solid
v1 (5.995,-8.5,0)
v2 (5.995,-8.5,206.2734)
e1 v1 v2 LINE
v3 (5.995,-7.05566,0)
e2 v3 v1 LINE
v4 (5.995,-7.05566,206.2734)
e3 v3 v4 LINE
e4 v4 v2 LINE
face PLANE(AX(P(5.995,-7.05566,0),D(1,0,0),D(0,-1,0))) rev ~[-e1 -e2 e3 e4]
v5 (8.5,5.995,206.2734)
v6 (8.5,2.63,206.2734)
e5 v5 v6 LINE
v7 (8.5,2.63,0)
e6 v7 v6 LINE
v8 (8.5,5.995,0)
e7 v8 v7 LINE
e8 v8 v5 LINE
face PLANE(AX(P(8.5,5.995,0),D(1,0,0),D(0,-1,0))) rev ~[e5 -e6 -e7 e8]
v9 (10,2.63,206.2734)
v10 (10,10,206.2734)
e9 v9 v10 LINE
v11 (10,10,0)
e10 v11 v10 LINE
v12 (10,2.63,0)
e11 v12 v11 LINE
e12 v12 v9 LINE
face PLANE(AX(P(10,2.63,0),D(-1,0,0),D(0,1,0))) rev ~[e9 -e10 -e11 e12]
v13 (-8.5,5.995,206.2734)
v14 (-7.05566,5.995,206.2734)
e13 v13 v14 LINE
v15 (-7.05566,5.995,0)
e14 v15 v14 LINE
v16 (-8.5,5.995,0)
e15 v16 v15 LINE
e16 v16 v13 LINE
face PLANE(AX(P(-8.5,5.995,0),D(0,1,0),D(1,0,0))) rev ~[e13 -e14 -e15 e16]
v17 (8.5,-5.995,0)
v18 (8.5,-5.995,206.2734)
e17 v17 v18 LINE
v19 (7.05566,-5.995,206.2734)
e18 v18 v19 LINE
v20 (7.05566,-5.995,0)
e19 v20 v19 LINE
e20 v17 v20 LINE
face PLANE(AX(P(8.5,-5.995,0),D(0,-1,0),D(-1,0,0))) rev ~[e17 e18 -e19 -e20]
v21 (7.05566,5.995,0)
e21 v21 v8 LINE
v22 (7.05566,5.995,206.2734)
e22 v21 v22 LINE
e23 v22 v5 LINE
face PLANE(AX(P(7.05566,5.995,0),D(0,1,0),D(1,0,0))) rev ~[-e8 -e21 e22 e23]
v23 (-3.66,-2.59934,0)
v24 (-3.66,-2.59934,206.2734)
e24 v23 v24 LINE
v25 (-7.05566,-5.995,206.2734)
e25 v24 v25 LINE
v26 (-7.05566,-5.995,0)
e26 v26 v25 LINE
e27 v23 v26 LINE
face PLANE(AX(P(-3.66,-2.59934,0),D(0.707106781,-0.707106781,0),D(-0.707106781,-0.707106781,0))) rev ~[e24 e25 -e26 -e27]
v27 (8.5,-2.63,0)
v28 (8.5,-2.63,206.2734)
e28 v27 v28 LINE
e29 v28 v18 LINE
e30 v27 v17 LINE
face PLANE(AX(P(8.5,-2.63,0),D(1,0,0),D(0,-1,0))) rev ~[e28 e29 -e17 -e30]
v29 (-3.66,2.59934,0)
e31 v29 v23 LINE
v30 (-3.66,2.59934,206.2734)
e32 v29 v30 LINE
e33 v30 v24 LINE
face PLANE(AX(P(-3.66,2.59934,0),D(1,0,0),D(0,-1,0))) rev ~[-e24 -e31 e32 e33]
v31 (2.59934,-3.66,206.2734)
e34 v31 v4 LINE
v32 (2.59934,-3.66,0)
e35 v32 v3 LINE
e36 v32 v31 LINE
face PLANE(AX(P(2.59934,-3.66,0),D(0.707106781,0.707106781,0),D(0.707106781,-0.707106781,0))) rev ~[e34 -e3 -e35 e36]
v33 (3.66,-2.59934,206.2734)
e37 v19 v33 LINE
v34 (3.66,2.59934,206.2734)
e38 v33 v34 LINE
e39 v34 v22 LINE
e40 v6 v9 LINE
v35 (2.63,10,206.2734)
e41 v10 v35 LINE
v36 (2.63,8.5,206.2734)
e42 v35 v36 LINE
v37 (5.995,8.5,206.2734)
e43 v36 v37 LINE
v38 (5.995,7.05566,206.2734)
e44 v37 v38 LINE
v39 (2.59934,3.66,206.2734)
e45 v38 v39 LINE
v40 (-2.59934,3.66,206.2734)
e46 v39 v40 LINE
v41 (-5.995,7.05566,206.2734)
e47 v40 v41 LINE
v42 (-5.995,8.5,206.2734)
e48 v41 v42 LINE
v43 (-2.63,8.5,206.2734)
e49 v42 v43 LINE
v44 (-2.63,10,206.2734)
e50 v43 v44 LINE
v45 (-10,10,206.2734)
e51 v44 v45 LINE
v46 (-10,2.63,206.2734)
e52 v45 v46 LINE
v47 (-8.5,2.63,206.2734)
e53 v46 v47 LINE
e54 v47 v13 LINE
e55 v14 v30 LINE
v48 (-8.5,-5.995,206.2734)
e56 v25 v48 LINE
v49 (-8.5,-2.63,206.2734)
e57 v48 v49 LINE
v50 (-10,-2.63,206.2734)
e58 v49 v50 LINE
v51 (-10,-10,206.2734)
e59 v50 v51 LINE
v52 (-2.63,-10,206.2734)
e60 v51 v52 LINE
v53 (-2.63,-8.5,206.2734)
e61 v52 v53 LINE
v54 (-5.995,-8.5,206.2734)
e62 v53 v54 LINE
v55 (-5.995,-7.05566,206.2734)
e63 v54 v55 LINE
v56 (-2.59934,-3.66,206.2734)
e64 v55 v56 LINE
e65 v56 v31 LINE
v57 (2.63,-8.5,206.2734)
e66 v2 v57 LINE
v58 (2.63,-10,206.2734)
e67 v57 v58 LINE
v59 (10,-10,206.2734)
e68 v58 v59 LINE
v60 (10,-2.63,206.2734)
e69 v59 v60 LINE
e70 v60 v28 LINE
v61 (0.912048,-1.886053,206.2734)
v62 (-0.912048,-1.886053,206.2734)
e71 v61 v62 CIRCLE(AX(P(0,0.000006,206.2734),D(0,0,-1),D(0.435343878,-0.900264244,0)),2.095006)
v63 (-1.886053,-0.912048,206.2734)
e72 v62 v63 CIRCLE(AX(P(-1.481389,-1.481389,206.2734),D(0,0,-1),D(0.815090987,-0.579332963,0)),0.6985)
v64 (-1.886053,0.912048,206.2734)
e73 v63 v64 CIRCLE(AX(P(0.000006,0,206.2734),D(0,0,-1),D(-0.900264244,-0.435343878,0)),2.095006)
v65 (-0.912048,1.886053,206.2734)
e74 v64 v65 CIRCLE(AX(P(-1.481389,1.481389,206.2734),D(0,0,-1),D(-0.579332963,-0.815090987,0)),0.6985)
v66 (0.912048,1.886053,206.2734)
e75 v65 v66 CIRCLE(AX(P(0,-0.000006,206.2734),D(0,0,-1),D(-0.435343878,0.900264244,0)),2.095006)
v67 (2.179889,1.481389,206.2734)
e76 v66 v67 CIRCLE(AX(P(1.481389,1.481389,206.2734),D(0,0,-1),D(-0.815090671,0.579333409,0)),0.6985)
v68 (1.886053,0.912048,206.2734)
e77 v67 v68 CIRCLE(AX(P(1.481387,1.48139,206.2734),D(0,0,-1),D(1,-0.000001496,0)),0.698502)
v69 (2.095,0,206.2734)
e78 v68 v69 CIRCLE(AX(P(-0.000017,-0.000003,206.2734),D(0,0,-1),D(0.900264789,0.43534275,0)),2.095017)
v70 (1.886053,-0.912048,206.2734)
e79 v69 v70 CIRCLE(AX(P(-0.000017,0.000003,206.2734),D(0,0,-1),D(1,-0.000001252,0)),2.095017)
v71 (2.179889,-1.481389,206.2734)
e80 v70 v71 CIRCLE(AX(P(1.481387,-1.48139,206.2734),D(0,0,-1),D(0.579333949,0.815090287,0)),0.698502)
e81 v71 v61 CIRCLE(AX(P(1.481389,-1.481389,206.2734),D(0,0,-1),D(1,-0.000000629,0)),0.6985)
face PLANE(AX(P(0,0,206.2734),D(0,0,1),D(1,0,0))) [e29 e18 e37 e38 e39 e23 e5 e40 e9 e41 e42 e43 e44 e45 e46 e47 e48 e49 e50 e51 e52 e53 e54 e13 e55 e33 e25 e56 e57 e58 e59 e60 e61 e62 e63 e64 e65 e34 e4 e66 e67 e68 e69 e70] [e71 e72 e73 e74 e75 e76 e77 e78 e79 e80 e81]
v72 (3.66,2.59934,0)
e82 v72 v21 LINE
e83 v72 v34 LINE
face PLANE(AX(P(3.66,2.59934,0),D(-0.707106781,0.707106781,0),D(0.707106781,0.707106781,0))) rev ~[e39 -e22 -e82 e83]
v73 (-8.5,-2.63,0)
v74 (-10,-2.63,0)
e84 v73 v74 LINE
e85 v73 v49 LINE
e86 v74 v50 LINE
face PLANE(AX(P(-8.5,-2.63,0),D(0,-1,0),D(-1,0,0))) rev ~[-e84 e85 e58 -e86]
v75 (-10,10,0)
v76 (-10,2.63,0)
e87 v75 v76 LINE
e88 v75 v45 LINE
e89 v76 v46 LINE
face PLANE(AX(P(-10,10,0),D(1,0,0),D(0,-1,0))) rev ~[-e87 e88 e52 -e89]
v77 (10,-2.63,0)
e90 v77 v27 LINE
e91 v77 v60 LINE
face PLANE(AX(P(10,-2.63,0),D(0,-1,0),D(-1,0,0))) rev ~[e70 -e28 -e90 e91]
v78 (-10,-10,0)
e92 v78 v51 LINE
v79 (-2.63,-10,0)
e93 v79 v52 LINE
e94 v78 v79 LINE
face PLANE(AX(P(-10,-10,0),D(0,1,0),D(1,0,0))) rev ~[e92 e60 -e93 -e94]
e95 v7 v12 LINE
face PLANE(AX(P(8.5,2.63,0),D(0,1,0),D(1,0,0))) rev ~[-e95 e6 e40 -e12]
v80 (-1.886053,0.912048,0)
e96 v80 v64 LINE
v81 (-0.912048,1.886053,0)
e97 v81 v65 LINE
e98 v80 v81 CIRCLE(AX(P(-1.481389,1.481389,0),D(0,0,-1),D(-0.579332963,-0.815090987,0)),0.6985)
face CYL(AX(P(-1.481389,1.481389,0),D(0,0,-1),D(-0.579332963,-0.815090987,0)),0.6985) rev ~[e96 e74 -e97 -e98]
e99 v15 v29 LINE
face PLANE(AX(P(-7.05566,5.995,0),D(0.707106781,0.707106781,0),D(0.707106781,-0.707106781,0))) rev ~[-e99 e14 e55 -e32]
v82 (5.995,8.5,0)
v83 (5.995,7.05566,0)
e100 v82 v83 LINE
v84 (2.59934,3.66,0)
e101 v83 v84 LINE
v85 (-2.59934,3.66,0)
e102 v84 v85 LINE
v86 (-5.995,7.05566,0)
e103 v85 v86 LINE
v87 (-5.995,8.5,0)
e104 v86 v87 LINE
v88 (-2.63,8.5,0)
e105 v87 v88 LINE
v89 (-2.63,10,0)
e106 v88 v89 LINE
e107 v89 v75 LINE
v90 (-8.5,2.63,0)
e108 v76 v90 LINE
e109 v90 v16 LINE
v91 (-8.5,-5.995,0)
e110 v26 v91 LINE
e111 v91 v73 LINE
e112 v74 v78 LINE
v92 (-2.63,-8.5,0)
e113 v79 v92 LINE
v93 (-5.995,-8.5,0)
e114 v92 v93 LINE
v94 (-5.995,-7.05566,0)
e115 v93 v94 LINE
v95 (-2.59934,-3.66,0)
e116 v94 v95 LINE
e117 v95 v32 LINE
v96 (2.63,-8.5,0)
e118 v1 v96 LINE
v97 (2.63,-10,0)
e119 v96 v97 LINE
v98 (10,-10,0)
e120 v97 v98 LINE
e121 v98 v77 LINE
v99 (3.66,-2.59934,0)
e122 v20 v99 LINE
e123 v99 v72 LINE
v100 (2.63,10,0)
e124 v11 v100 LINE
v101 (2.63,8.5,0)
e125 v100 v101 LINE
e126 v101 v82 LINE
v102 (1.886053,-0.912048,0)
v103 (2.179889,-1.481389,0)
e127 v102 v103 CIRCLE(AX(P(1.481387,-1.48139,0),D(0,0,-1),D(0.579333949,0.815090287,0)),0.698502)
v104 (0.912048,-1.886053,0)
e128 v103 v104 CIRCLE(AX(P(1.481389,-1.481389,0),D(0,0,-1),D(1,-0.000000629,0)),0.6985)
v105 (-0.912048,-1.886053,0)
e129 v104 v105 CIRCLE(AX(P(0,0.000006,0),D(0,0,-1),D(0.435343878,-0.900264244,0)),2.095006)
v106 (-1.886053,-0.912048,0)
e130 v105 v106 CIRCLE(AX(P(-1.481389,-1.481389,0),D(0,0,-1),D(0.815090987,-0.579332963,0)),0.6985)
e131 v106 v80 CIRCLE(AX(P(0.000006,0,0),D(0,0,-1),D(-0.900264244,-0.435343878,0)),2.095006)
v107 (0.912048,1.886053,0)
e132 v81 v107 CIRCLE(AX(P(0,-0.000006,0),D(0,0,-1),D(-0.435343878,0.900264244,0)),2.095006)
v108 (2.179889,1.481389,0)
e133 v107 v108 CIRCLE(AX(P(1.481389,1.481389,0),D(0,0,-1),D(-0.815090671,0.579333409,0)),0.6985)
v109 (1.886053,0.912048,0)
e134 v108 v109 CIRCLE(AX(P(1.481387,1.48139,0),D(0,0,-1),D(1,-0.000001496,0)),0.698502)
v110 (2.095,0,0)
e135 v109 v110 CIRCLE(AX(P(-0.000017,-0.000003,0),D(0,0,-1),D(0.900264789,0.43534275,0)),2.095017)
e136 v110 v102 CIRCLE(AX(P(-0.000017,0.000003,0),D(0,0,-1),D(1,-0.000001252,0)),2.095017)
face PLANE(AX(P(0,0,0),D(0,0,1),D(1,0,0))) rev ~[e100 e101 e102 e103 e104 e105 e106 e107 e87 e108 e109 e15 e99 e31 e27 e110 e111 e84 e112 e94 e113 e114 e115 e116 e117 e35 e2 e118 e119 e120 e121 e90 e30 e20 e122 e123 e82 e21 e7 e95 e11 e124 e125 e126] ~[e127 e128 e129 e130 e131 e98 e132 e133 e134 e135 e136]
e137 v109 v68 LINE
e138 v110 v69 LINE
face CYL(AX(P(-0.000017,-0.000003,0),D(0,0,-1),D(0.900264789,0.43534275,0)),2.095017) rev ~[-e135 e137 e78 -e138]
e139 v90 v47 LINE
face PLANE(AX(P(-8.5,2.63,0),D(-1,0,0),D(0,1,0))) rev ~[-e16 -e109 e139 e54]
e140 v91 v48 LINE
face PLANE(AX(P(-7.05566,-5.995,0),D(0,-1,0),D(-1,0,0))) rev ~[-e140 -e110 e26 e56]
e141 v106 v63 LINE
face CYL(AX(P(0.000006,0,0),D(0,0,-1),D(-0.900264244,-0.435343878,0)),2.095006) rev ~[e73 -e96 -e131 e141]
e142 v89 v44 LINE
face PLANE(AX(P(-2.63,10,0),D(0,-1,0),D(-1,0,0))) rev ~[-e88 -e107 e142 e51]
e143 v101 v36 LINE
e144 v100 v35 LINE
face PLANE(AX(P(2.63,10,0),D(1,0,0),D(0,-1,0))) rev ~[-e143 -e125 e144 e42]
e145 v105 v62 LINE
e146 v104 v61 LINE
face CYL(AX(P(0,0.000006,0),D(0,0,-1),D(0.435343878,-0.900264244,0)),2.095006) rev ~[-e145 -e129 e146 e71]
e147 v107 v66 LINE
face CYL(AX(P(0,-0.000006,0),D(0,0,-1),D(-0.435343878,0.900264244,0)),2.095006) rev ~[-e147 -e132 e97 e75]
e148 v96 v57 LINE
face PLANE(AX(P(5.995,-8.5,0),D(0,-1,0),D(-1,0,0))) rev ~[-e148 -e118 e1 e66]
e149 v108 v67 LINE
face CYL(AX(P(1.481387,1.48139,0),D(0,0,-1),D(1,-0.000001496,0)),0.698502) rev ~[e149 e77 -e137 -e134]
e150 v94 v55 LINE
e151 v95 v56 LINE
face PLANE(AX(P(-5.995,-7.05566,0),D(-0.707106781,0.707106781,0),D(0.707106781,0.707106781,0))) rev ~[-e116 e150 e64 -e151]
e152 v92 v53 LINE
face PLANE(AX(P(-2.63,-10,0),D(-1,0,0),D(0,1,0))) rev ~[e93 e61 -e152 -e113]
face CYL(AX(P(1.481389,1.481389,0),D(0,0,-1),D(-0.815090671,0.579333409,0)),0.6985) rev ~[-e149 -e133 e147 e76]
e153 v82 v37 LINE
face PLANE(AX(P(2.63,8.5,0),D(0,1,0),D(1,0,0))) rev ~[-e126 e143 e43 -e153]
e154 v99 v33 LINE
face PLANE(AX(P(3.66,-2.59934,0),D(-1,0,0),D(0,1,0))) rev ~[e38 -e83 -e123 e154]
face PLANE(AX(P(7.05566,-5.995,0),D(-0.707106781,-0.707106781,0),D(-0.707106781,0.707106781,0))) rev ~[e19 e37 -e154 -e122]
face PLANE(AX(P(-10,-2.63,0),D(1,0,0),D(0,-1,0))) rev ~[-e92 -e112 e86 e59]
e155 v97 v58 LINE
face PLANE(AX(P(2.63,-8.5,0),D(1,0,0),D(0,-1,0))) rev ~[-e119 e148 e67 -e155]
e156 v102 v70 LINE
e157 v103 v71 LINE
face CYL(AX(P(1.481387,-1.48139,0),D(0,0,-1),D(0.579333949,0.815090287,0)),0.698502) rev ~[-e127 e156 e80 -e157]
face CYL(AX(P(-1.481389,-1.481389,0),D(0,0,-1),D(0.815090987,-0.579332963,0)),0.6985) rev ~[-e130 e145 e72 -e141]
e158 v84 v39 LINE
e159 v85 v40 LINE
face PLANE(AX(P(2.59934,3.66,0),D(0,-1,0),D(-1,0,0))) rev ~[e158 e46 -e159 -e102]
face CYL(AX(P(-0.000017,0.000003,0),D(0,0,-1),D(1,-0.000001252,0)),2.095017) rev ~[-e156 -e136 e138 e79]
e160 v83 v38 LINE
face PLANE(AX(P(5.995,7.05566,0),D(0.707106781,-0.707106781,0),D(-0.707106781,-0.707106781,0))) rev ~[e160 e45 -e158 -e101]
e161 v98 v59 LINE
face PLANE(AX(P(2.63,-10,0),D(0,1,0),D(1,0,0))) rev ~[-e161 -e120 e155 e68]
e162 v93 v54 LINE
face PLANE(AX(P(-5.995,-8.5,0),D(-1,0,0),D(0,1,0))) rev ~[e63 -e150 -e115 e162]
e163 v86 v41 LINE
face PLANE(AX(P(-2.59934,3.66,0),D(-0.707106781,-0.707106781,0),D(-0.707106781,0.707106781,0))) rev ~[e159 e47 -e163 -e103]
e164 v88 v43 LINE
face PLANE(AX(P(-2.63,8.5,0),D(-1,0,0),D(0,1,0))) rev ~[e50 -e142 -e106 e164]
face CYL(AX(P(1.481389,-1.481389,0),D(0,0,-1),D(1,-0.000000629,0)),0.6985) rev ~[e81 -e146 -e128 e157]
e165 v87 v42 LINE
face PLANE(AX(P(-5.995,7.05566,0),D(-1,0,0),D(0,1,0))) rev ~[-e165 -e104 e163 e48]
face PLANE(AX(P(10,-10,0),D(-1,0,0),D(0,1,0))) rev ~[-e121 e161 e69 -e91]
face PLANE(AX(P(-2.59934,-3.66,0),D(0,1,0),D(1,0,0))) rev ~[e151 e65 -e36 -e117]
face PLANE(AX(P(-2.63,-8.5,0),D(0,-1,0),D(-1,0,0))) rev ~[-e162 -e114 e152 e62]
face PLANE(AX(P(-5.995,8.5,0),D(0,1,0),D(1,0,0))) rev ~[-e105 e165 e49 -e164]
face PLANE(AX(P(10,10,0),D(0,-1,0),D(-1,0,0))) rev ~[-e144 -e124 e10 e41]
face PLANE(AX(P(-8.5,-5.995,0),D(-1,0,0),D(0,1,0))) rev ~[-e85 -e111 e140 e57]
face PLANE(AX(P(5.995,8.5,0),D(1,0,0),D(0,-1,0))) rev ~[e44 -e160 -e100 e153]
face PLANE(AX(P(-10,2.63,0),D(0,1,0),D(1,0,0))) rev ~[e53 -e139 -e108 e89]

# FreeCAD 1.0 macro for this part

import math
import FreeCAD as App
import Part
import Sketcher
from FreeCAD import Vector
Q = App.Units.Quantity


def add_polygon(sketch, points):
    """Adds a closed chain of lines whose ends are joined by coincident constraints."""
    first, n = sketch.GeometryCount, len(points)
    for a, b in zip(points, points[1:] + points[:1]):
        sketch.addGeometry(Part.LineSegment(App.Vector(*a, 0), App.Vector(*b, 0)), False)
    for i in range(n):
        sketch.addConstraint(Sketcher.Constraint("Coincident", first + i, 2, first + (i + 1) % n, 1))

doc = App.newDocument("Part")
params = doc.addObject("Spreadsheet::Sheet", "Params")
for row, (alias, value) in enumerate([
    ("pad1_length", "8.121 in"),
], start=1):
    params.set(f"A{row}", alias)
    params.set(f"B{row}", "=" + value)
    params.setAlias(f"B{row}", alias)

body = doc.addObject("PartDesign::Body", "Body")

sketch1 = doc.addObject("Sketcher::SketchObject", "Sketch")
body.addObject(sketch1)
sketch1.AttachmentSupport = (doc.XY_Plane, [""])
sketch1.MapMode = "FlatFace"
add_polygon(sketch1, [(10, 2.6), (10, 10), (2.6, 10), (2.6, 8.5), (6, 8.5), (6, 7.1), (2.6, 3.7), (-2.6, 3.7), (-6, 7.1), (-6, 8.5), (-2.6, 8.5), (-2.6, 10), (-10, 10), (-10, 2.6), (-8.5, 2.6), (-8.5, 6), (-7.1, 6), (-3.7, 2.6), (-3.7, -2.6), (-7.1, -6), (-8.5, -6), (-8.5, -2.6), (-10, -2.6), (-10, -10), (-2.6, -10), (-2.6, -8.5), (-6, -8.5), (-6, -7.1), (-2.6, -3.7), (2.6, -3.7), (6, -7.1), (6, -8.5), (2.6, -8.5), (2.6, -10), (10, -10), (10, -2.6), (8.5, -2.6), (8.5, -6), (7.1, -6), (3.7, -2.6), (3.7, 2.6), (7.1, 6), (8.5, 6), (8.5, 2.6)])
sketch1.addGeometry(Part.ArcOfCircle(Part.Circle(Vector(1.5, 1.5, 0), Vector(0, 0, 1), 0.7), math.radians(-55), math.radians(0)), False)
sketch1.addGeometry(Part.ArcOfCircle(Part.Circle(Vector(0, 0, 0), Vector(0, 0, 1), 2.1), math.radians(0), math.radians(26)), False)
sketch1.addGeometry(Part.ArcOfCircle(Part.Circle(Vector(0, 0, 0), Vector(0, 0, 1), 2.1), math.radians(-26), math.radians(0)), False)
sketch1.addGeometry(Part.ArcOfCircle(Part.Circle(Vector(1.5, -1.5, 0), Vector(0, 0, 1), 0.7), math.radians(0), math.radians(55)), False)
sketch1.addGeometry(Part.ArcOfCircle(Part.Circle(Vector(1.5, -1.5, 0), Vector(0, 0, 1), 0.7), math.radians(-145), math.radians(0)), False)
sketch1.addGeometry(Part.ArcOfCircle(Part.Circle(Vector(0, 0, 0), Vector(0, 0, 1), 2.1), math.radians(-116), math.radians(-64)), False)
sketch1.addGeometry(Part.ArcOfCircle(Part.Circle(Vector(-1.5, -1.5, 0), Vector(0, 0, 1), 0.7), math.radians(125), math.radians(325)), False)
sketch1.addGeometry(Part.ArcOfCircle(Part.Circle(Vector(0, 0, 0), Vector(0, 0, 1), 2.1), math.radians(154), math.radians(206)), False)
sketch1.addGeometry(Part.ArcOfCircle(Part.Circle(Vector(-1.5, 1.5, 0), Vector(0, 0, 1), 0.7), math.radians(35), math.radians(235)), False)
sketch1.addGeometry(Part.ArcOfCircle(Part.Circle(Vector(0, 0, 0), Vector(0, 0, 1), 2.1), math.radians(64), math.radians(116)), False)
sketch1.addGeometry(Part.ArcOfCircle(Part.Circle(Vector(1.5, 1.5, 0), Vector(0, 0, 1), 0.7), math.radians(0), math.radians(145)), False)
sketch1.addConstraint([
    Sketcher.Constraint("Coincident", 44, 1, 45, 2),
    Sketcher.Constraint("Coincident", 45, 1, 46, 2),
    Sketcher.Constraint("Coincident", 46, 1, 47, 2),
    Sketcher.Constraint("Coincident", 47, 1, 48, 2),
    Sketcher.Constraint("Coincident", 48, 1, 49, 2),
    Sketcher.Constraint("Coincident", 49, 1, 50, 2),
    Sketcher.Constraint("Coincident", 50, 1, 51, 2),
    Sketcher.Constraint("Coincident", 51, 1, 52, 2),
    Sketcher.Constraint("Coincident", 52, 1, 53, 2),
    Sketcher.Constraint("Coincident", 53, 1, 54, 2),
    Sketcher.Constraint("Coincident", 54, 1, 44, 2),
    Sketcher.Constraint("Vertical", 0),
    Sketcher.Constraint("Horizontal", 1),
    Sketcher.Constraint("Vertical", 2),
    Sketcher.Constraint("Horizontal", 3),
    Sketcher.Constraint("Vertical", 4),
    Sketcher.Constraint("Horizontal", 6),
    Sketcher.Constraint("Vertical", 8),
    Sketcher.Constraint("Horizontal", 9),
    Sketcher.Constraint("Vertical", 10),
    Sketcher.Constraint("Horizontal", 11),
    Sketcher.Constraint("Vertical", 12),
    Sketcher.Constraint("Horizontal", 13),
    Sketcher.Constraint("Vertical", 14),
    Sketcher.Constraint("Horizontal", 15),
    Sketcher.Constraint("Vertical", 17),
    Sketcher.Constraint("Horizontal", 19),
    Sketcher.Constraint("Vertical", 20),
    Sketcher.Constraint("Horizontal", 21),
    Sketcher.Constraint("Vertical", 22),
    Sketcher.Constraint("Horizontal", 23),
    Sketcher.Constraint("Vertical", 24),
    Sketcher.Constraint("Horizontal", 25),
    Sketcher.Constraint("Vertical", 26),
    Sketcher.Constraint("Horizontal", 28),
    Sketcher.Constraint("Vertical", 30),
    Sketcher.Constraint("Horizontal", 31),
    Sketcher.Constraint("Vertical", 32),
    Sketcher.Constraint("Horizontal", 33),
    Sketcher.Constraint("Vertical", 34),
    Sketcher.Constraint("Horizontal", 35),
    Sketcher.Constraint("Vertical", 36),
    Sketcher.Constraint("Horizontal", 37),
    Sketcher.Constraint("Vertical", 39),
    Sketcher.Constraint("Horizontal", 41),
    Sketcher.Constraint("Vertical", 42),
    Sketcher.Constraint("Horizontal", 43),
    Sketcher.Constraint("Coincident", 49, 3, -1, 1),
    Sketcher.Constraint("Coincident", 51, 3, -1, 1),
    Sketcher.Constraint("Coincident", 53, 3, -1, 1),
    Sketcher.Constraint("Coincident", 46, 3, 45, 3),
    Sketcher.Constraint("Coincident", 48, 3, 47, 3),
    Sketcher.Constraint("Coincident", 54, 3, 44, 3),
    Sketcher.Constraint("Equal", 44, 47),
    Sketcher.Constraint("Equal", 48, 50),
    Sketcher.Constraint("Equal", 49, 51),
    Sketcher.Constraint("Equal", 50, 52),
    Sketcher.Constraint("Equal", 51, 53),
    Sketcher.Constraint("Symmetric", 44, 3, 50, 3, -1, 1),
    Sketcher.Constraint("Symmetric", 47, 3, 52, 3, -1, 1),
    Sketcher.Constraint("Symmetric", 0, 2, 22, 2, -1, 1),
    Sketcher.Constraint("Symmetric", 2, 2, 24, 2, -1, 1),
    Sketcher.Constraint("Symmetric", 4, 2, 26, 2, -1, 1),
    Sketcher.Constraint("Symmetric", 5, 2, 27, 2, -1, 1),
    Sketcher.Constraint("Symmetric", 7, 2, 29, 2, -1, 1),
    Sketcher.Constraint("Symmetric", 9, 2, 31, 2, -1, 1),
    Sketcher.Constraint("Symmetric", 11, 2, 33, 2, -1, 1),
    Sketcher.Constraint("Symmetric", 13, 2, 35, 2, -1, 1),
    Sketcher.Constraint("Symmetric", 15, 2, 37, 2, -1, 1),
    Sketcher.Constraint("Symmetric", 16, 2, 38, 2, -1, 1),
    Sketcher.Constraint("Symmetric", 18, 2, 40, 2, -1, 1),
    Sketcher.Constraint("Symmetric", 20, 2, 42, 2, -1, 1),
    Sketcher.Constraint("Symmetric", 47, 3, 50, 3, -2),
    Sketcher.Constraint("Symmetric", 4, 2, 7, 2, -2),
    Sketcher.Constraint("Symmetric", 2, 2, 9, 2, -2),
    Sketcher.Constraint("Symmetric", 0, 2, 11, 2, -2),
    Sketcher.Constraint("Symmetric", 20, 2, 35, 2, -2),
    Sketcher.Constraint("Symmetric", 18, 2, 37, 2, -2),
    Sketcher.Constraint("PointOnObject", 45, 1, -1),
    Sketcher.Constraint("Perpendicular", 5, 7),
    Sketcher.Constraint("Parallel", 7, 16),
    Sketcher.Constraint("Perpendicular", 16, 18),
    Sketcher.Constraint("Perpendicular", 27, 29),
    Sketcher.Constraint("Perpendicular", 38, 40),
    Sketcher.Constraint("Horizontal", 17, 2, 38, 2),
    Sketcher.Constraint("Horizontal", 50, 3, 47, 1),
    Sketcher.Constraint("Horizontal", 46, 1, 50, 1),
    Sketcher.Constraint("Horizontal", 44, 1, 51, 1),
    Sketcher.Constraint("Horizontal", 52, 3, 54, 1),
    Sketcher.Constraint("Equal", 33, 0),
    Sketcher.Constraint("Equal", 43, 2),
    Sketcher.Constraint("Equal", 41, 4),
    Sketcher.Constraint("Equal", 31, 14),
    Sketcher.Constraint("Equal", 28, 17),
    Sketcher.Constraint("Equal", 7, 16),
    Sketcher.Constraint("Radius", 44, Q("0.0275001 in")),
    Sketcher.Constraint("DistanceX", 1, 2, 1, 1, 7.37),
    Sketcher.Constraint("DistanceX", 3, 1, 3, 2, 3.365),
    Sketcher.Constraint("DistanceX", 13, 1, 13, 2, 1.5),
    Sketcher.Constraint("Radius", 45, 2.095017),
    Sketcher.Constraint("Radius", 49, 2.095006),
    Sketcher.Constraint("DistanceX", 6, 2, 6, 1, 5.19868),
    Sketcher.Constraint("DistanceX", 15, 1, 15, 2, 1.44434),
    Sketcher.Constraint("DistanceX", -1, 1, 0, 2, 10.0),
    Sketcher.Constraint("DistanceY", -1, 1, 44, 3, 1.48139),
    Sketcher.Constraint("DistanceX", -1, 1, 48, 3, 1.481389),
])
pad1 = doc.addObject("PartDesign::Pad", "Pad")
body.addObject(pad1)
pad1.Profile = sketch1
pad1.setExpression("Length", "Params.pad1_length")

doc.recompute()
